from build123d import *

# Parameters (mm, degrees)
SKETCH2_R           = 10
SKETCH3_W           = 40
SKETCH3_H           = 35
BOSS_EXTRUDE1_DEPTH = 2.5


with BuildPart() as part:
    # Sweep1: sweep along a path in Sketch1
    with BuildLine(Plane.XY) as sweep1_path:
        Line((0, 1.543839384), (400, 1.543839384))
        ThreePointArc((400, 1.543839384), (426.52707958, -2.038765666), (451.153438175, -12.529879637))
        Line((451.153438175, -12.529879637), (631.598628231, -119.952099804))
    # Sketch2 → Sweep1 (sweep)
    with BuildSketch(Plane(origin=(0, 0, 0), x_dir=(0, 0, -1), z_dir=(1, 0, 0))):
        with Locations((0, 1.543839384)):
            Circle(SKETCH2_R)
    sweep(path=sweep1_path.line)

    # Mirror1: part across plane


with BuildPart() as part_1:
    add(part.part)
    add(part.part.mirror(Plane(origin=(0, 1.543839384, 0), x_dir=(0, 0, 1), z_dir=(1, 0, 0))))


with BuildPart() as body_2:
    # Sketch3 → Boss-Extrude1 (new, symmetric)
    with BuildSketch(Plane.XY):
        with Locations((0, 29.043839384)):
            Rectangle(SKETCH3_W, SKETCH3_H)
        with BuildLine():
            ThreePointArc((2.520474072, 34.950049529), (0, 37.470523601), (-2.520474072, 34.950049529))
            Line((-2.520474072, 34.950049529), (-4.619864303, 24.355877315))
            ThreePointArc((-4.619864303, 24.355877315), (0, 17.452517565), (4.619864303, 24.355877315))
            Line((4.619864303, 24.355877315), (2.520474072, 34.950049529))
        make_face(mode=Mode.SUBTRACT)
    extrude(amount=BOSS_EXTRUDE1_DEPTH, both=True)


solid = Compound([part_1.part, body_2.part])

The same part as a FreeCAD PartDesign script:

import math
import FreeCAD as App
import Part
import Sketcher
Q = App.Units.Quantity

doc = App.newDocument("Part")
body = doc.addObject("PartDesign::Body", "Body")

# Sketch on YZ plane
sketch1 = body.newObject("Sketcher::SketchObject", "Sketch")
sketch1.AttachmentSupport = (doc.getObject("YZ_Plane"), [""])
sketch1.MapMode = "FlatFace"
sketch1.addGeometry(Part.Circle(App.Vector(2, 0, 0), App.Vector(0, 0, 1), 10), False)
sketch1.addConstraint([
    Sketcher.Constraint("PointOnObject", 0, 3, -1),
    Sketcher.Constraint("Diameter", 0, Q("20 mm")),
    Sketcher.Constraint("DistanceX", -1, 1, 0, 3, Q("1.543839 mm")),
])

# Sketch on XY plane
sketch2 = body.newObject("Sketcher::SketchObject", "Sketch001")
sketch2.AttachmentSupport = (doc.getObject("XY_Plane"), [""])
sketch2.MapMode = "FlatFace"
sketch2.addGeometry([
    Part.LineSegment(App.Vector(0, 2, 0), App.Vector(400, 2, 0)),
    Part.ArcOfCircle(Part.Circle(App.Vector(400, -98, 0), App.Vector(0, 0, 1), 100), math.radians(59), math.radians(90)),
    Part.LineSegment(App.Vector(451, -13, 0), App.Vector(632, -120, 0)),
], False)
sketch2.addConstraint([
    Sketcher.Constraint("Tangent", 0, 2, 1, 2),
    Sketcher.Constraint("Tangent", 1, 1, 2, 1),
    Sketcher.Constraint("Horizontal", 0),
    Sketcher.Constraint("PointOnObject", 0, 1, -2),
    Sketcher.Constraint("Radius", 1, Q("100 mm")),
    Sketcher.Constraint("DistanceX", 0, 1, 0, 2, Q("400 mm")),
    Sketcher.Constraint("Distance", 2, Q("210 mm")),
    Sketcher.Constraint("DistanceY", 2, 2, -1, 1, Q("119.9521 mm")),
    Sketcher.Constraint("DistanceY", 1, 3, -1, 1, Q("98.456161 mm")),
])
doc.recompute()

additivepipe = body.newObject("PartDesign::AdditivePipe", "AdditivePipe")
additivepipe.Profile = sketch1
additivepipe.Spine = (sketch2, ["Edge1", "Edge2", "Edge3"])
body2 = doc.addObject("PartDesign::Body", "Body001")
doc.recompute()

body2.BaseFeature = body
doc.recompute()

mirroring = doc.addObject("Part::Mirroring", "Mirroring")
mirroring.Source = body
mirroring.Base = App.Vector(0, 1.543839, 0)
mirroring.Normal = App.Vector(1, 0, 0)
body3 = doc.addObject("PartDesign::Body", "Body002")
body3.BaseFeature = mirroring
boolean = body2.newObject("PartDesign::Boolean", "Boolean")
boolean.Type = "Fuse"
boolean.addObjects([body3])
doc.recompute()
body4 = doc.addObject("PartDesign::Body", "Body003")

# Sketch on XY plane
sketch3 = body4.newObject("Sketcher::SketchObject", "Sketch002")
sketch3.AttachmentSupport = (doc.getObject("XY_Plane003"), [""])
sketch3.MapMode = "FlatFace"
sketch3.addGeometry([
    Part.LineSegment(App.Vector(-20, 46.5, 0), App.Vector(-20, 11.5, 0)),  # 0
    Part.LineSegment(App.Vector(-20, 11.5, 0), App.Vector(20, 11.5, 0)),  # 1
    Part.LineSegment(App.Vector(20, 11.5, 0), App.Vector(20, 46.5, 0)),  # 2
    Part.LineSegment(App.Vector(20, 46.5, 0), App.Vector(-20, 46.5, 0)),  # 3
    Part.ArcOfCircle(Part.Circle(App.Vector(0, 35, 0), App.Vector(0, 0, 1), 2.5), math.radians(0), math.radians(180)),  # 4
    Part.LineSegment(App.Vector(2.5, 35, 0), App.Vector(4.6, 24.4, 0)),  # 5
    Part.ArcOfCircle(Part.Circle(App.Vector(0, 22.5, 0), App.Vector(0, 0, 1), 5), math.radians(158), math.radians(382)),  # 6
    Part.LineSegment(App.Vector(-4.6, 24.4, 0), App.Vector(-2.5, 35, 0)),  # 7
], False)
sketch3.addConstraint([
    Sketcher.Constraint("Coincident", 0, 2, 1, 1),
    Sketcher.Constraint("Coincident", 1, 2, 2, 1),
    Sketcher.Constraint("Coincident", 2, 2, 3, 1),
    Sketcher.Constraint("Coincident", 3, 2, 0, 1),
    Sketcher.Constraint("Coincident", 4, 1, 5, 1),
    Sketcher.Constraint("Coincident", 5, 2, 6, 2),
    Sketcher.Constraint("Coincident", 6, 1, 7, 1),
    Sketcher.Constraint("Coincident", 7, 2, 4, 2),
    Sketcher.Constraint("Vertical", 0),
    Sketcher.Constraint("Horizontal", 1),
    Sketcher.Constraint("Vertical", 2),
    Sketcher.Constraint("Horizontal", 3),
    Sketcher.Constraint("Symmetric", 5, 2, 6, 1, -2),
    Sketcher.Constraint("Symmetric", 4, 1, 7, 2, -2),
    Sketcher.Constraint("DistanceX", 1, 1, 1, 2, Q("40 mm")),
    Sketcher.Constraint("DistanceY", 0, 2, 0, 1, Q("35 mm")),
    Sketcher.Constraint("DistanceX", 0, 2, -1, 1, Q("20 mm")),
    Sketcher.Constraint("DistanceY", 6, 3, 4, 3, Q("12.5 mm")),
    Sketcher.Constraint("DistanceY", 6, 3, 4, 1, Q("12.5 mm")),
    Sketcher.Constraint("Radius", 6, Q("4.997532 mm")),
    Sketcher.Constraint("Radius", 4, Q("2.520474 mm")),
    Sketcher.Constraint("Distance", 5, Q("10.800182 mm")),
    Sketcher.Constraint("DistanceY", -1, 1, 4, 3, Q("34.95005 mm")),
    Sketcher.Constraint("DistanceY", -1, 1, 0, 2, Q("11.543839 mm")),
])
pad1 = body4.newObject("PartDesign::Pad", "Pad")
pad1.Profile = sketch3
pad1.Length = 5
pad1.Midplane = True
mirroring.Visibility = False

doc.recompute()
